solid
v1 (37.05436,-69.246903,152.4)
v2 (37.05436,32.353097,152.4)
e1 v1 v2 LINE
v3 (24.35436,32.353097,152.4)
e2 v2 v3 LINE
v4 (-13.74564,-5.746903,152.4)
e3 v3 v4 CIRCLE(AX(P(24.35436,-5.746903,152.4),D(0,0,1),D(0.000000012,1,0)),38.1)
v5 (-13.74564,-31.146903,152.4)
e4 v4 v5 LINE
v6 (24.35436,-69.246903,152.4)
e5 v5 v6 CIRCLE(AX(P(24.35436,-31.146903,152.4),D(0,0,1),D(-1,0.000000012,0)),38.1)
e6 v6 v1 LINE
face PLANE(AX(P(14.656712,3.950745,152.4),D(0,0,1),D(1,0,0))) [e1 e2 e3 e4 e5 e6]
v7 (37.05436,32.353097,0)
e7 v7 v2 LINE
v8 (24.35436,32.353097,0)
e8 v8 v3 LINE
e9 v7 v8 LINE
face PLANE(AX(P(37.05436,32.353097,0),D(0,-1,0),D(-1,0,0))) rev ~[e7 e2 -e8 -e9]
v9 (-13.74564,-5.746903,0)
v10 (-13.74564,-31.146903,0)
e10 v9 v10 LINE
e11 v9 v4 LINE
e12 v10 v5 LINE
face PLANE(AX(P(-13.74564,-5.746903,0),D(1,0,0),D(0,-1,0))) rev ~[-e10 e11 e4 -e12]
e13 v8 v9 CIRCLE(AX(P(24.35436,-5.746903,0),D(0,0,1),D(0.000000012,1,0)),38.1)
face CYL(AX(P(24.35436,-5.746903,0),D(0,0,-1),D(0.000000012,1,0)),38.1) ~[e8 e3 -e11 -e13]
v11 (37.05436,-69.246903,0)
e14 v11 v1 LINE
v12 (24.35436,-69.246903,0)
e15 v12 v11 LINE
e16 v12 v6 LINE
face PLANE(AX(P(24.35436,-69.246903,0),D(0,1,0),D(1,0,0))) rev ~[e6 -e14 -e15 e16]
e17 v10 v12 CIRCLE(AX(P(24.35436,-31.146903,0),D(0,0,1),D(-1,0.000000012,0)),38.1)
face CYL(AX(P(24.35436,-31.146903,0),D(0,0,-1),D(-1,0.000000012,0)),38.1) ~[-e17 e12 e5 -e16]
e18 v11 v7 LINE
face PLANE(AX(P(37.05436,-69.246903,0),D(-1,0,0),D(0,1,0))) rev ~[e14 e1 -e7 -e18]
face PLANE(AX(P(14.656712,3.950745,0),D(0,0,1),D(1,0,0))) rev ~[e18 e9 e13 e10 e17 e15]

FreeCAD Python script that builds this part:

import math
import FreeCAD as App
import Part
import Sketcher
Q = App.Units.Quantity

doc = App.newDocument("Part")
body = doc.addObject("PartDesign::Body", "Body")

# Sketch on XY plane
sketch1 = body.newObject("Sketcher::SketchObject", "Sketch")
sketch1.AttachmentSupport = (doc.getObject("XY_Plane"), [""])
sketch1.MapMode = "FlatFace"
sketch1.addGeometry([
    Part.LineSegment(App.Vector(37, 32, 0), App.Vector(24, 32, 0)),  # 0
    Part.ArcOfCircle(Part.Circle(App.Vector(24, -6, 0), App.Vector(0, 0, 1), 38), math.radians(90), math.radians(180)),  # 1
    Part.LineSegment(App.Vector(-14, -6, 0), App.Vector(-14, -31, 0)),  # 2
    Part.ArcOfCircle(Part.Circle(App.Vector(24, -31, 0), App.Vector(0, 0, 1), 38), math.radians(180), math.radians(270)),  # 3
    Part.LineSegment(App.Vector(24, -69, 0), App.Vector(37, -69, 0)),  # 4
    Part.LineSegment(App.Vector(37, -69, 0), App.Vector(37, 32, 0)),  # 5
], False)
sketch1.addConstraint([
    Sketcher.Constraint("Tangent", 0, 2, 1, 1),
    Sketcher.Constraint("Tangent", 1, 2, 2, 1),
    Sketcher.Constraint("Tangent", 2, 2, 3, 1),
    Sketcher.Constraint("Tangent", 3, 2, 4, 1),
    Sketcher.Constraint("Coincident", 4, 2, 5, 1),
    Sketcher.Constraint("Coincident", 5, 2, 0, 1),
    Sketcher.Constraint("Horizontal", 0),
    Sketcher.Constraint("Vertical", 2),
    Sketcher.Constraint("Horizontal", 4),
    Sketcher.Constraint("Vertical", 5),
    Sketcher.Constraint("Equal", 1, 3),
    Sketcher.Constraint("Radius", 1, Q("1.5 in")),
    Sketcher.Constraint("DistanceY", 2, 2, 2, 1, Q("1 in")),
    Sketcher.Constraint("DistanceX", 0, 2, 0, 1, Q("0.5 in")),
    Sketcher.Constraint("DistanceX", -1, 1, 1, 3, Q("24.35436 mm")),
    Sketcher.Constraint("DistanceY", 1, 3, -1, 1, Q("5.746903 mm")),
])
pad1 = body.newObject("PartDesign::Pad", "Pad")
pad1.Profile = sketch1
pad1.Length = Q("6 in")

doc.recompute()
